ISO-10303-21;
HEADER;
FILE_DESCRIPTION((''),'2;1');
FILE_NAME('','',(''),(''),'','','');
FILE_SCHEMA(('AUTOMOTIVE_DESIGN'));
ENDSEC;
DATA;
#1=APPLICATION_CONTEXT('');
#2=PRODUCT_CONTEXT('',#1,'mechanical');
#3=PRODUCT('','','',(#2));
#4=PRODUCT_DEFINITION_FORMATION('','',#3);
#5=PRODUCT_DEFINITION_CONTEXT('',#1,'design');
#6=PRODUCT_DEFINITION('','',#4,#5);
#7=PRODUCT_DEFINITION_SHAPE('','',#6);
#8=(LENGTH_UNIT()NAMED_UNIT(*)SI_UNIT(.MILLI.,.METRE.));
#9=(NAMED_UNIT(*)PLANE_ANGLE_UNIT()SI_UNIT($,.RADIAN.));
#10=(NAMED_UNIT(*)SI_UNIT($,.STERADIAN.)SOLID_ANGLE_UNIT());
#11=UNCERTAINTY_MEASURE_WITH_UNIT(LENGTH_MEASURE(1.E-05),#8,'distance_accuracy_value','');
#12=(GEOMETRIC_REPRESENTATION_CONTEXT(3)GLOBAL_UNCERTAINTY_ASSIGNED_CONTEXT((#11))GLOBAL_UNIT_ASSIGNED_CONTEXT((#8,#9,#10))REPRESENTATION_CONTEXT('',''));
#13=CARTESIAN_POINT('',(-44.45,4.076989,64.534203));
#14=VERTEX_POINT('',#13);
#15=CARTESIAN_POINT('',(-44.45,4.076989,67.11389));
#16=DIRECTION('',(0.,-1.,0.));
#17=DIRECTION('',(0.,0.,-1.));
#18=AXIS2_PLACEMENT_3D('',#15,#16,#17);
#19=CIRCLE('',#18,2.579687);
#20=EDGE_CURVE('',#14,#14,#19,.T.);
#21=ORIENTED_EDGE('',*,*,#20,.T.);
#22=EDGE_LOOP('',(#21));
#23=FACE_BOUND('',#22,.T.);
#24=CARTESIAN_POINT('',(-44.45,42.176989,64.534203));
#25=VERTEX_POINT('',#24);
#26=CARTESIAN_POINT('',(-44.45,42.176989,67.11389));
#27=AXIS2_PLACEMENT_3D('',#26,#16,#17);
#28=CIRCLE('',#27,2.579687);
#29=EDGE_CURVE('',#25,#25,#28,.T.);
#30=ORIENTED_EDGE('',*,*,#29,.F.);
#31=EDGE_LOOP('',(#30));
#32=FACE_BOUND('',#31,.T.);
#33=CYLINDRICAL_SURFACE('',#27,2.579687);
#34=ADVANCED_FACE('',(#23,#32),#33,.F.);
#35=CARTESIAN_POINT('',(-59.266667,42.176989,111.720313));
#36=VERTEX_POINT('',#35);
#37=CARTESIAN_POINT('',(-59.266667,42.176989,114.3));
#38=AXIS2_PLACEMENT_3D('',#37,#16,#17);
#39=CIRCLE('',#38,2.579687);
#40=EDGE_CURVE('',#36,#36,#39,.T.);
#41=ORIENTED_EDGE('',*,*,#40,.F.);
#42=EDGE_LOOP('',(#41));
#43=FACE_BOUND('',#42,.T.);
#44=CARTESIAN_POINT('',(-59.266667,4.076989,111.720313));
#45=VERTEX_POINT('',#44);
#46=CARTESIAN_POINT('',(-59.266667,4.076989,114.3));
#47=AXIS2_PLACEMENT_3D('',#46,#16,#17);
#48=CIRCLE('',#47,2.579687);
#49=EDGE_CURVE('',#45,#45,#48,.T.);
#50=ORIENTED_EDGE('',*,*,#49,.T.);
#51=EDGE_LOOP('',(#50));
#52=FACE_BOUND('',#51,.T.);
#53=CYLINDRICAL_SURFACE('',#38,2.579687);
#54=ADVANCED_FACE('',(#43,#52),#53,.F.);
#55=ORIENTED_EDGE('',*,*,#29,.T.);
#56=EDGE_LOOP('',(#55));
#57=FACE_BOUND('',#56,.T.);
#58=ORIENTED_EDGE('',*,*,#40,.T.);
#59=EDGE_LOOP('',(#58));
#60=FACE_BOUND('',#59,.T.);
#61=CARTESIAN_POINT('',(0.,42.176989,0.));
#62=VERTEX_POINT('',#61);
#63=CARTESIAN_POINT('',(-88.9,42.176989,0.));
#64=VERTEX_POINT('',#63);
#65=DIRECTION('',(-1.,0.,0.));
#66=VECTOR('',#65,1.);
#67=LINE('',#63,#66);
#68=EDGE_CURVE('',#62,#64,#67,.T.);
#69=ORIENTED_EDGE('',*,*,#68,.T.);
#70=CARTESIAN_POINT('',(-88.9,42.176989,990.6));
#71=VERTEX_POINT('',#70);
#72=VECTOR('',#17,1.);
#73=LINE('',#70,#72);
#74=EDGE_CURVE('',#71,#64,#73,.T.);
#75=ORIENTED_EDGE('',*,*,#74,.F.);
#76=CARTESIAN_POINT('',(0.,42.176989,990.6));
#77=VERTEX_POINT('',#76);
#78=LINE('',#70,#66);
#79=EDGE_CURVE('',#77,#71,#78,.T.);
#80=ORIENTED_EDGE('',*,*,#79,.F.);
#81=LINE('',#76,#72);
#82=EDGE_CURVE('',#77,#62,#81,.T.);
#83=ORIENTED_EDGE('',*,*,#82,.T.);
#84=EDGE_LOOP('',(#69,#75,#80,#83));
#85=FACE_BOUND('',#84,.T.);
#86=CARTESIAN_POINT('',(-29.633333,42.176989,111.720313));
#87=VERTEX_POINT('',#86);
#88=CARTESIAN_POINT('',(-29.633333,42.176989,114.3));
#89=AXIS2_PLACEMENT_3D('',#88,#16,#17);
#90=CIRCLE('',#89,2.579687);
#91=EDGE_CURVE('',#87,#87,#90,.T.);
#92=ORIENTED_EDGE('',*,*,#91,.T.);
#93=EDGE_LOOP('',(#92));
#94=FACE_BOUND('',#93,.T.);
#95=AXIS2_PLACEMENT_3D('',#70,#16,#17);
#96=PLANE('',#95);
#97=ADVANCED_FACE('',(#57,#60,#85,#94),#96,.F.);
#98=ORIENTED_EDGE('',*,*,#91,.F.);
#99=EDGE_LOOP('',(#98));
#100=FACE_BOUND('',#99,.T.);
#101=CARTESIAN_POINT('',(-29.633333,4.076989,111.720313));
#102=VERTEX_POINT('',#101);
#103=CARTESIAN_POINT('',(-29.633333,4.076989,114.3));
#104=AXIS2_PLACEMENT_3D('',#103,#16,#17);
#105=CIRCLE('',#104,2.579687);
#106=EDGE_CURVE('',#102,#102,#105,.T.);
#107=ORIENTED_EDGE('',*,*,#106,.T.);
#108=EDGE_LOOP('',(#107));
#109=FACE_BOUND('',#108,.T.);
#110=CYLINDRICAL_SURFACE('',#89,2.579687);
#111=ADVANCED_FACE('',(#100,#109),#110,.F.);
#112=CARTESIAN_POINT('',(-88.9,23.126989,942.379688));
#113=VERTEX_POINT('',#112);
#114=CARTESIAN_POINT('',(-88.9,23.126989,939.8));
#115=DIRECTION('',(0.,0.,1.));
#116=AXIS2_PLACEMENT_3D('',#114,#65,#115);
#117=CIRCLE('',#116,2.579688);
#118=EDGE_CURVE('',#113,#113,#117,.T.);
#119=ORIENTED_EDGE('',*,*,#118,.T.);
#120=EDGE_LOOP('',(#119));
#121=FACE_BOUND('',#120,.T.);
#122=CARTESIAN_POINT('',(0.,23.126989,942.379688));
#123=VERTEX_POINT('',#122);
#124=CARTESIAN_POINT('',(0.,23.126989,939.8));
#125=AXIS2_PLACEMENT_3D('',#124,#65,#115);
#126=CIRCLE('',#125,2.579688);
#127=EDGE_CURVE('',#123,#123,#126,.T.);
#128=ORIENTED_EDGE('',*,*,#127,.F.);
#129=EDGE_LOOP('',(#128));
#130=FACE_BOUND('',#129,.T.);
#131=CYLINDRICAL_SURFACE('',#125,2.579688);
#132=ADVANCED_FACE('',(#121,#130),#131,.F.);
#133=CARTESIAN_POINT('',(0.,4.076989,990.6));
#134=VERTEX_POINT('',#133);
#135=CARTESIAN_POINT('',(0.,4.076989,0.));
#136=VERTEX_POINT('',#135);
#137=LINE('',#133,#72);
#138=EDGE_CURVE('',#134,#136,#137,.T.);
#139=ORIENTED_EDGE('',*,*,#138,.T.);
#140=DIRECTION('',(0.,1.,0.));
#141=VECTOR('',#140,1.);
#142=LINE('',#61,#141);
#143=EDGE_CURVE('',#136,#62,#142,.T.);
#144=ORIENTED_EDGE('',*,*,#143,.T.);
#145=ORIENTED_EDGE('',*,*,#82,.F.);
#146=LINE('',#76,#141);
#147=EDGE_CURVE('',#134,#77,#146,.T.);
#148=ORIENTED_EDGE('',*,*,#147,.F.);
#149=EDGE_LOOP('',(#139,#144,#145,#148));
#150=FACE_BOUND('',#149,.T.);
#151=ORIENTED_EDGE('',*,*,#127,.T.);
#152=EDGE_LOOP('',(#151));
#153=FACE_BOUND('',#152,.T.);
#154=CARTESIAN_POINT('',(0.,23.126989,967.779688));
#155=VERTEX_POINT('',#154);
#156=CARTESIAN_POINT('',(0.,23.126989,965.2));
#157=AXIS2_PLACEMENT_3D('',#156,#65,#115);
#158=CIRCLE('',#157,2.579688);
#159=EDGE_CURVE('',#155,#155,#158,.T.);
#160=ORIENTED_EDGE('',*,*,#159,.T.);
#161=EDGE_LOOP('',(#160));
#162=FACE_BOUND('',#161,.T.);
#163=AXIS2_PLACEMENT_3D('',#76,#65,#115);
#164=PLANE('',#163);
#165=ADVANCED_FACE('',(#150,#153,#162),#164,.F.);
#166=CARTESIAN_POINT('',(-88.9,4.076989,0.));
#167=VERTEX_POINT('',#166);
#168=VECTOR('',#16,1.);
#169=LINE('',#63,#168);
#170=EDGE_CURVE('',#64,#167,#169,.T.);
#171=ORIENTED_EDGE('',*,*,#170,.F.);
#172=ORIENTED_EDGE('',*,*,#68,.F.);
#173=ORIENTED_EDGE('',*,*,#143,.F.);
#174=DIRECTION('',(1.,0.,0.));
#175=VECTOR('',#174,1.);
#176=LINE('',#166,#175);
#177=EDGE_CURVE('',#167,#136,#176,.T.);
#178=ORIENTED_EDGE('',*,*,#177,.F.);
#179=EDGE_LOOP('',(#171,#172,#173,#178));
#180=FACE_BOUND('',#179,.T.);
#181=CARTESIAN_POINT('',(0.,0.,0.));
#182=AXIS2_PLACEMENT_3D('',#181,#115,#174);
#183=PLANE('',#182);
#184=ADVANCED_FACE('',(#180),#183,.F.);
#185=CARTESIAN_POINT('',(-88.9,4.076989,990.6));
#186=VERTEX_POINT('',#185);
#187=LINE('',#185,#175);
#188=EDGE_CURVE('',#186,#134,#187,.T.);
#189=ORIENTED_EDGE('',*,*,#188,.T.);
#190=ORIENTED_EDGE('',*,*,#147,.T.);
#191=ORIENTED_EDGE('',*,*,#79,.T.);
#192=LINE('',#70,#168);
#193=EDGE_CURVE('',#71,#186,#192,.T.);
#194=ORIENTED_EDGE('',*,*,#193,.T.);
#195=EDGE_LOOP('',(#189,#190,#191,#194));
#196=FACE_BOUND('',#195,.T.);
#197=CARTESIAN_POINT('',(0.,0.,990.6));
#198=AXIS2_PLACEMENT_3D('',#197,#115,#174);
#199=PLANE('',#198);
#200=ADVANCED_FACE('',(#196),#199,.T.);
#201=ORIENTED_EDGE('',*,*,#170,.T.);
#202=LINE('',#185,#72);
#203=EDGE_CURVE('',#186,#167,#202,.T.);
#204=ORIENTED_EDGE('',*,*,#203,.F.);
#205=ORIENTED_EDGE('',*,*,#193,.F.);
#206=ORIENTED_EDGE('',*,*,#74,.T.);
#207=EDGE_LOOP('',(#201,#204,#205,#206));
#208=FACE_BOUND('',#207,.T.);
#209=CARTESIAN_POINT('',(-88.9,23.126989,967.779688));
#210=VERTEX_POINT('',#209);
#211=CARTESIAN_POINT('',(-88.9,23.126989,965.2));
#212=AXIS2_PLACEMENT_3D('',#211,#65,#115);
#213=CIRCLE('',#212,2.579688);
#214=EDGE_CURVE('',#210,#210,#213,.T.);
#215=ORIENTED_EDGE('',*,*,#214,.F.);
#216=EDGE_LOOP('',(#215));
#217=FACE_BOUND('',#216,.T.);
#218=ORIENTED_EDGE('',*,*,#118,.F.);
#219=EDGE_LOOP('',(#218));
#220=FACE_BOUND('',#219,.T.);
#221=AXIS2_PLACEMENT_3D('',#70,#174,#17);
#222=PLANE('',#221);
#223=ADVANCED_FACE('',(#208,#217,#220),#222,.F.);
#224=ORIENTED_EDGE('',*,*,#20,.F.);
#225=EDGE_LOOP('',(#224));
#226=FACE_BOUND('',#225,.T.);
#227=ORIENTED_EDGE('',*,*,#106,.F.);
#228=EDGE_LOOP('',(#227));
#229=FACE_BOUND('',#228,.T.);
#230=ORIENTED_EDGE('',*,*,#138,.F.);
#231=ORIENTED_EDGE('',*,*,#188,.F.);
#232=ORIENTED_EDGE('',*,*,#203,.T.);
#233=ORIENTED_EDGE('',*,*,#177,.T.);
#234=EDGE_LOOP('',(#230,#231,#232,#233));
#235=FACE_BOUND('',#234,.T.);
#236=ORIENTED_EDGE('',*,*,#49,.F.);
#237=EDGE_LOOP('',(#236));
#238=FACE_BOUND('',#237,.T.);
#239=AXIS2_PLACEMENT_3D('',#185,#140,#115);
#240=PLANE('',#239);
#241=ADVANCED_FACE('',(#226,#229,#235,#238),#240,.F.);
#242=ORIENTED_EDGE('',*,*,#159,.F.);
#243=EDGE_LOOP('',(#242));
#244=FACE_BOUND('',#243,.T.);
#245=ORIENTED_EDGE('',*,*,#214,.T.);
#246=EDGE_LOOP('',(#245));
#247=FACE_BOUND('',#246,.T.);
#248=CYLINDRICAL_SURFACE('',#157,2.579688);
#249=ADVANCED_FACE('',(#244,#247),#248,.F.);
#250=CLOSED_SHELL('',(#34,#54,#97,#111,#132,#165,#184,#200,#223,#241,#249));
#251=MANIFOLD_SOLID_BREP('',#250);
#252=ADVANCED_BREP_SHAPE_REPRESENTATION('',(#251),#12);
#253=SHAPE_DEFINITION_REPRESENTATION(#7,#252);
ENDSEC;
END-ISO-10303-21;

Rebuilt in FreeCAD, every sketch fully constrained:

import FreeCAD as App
import Part
import Sketcher
Q = App.Units.Quantity

doc = App.newDocument("Part")
body = doc.addObject("PartDesign::Body", "Body")

# Sketch on XY plane
sketch1 = body.newObject("Sketcher::SketchObject", "Sketch")
sketch1.AttachmentSupport = (doc.getObject("XY_Plane"), [""])
sketch1.MapMode = "FlatFace"
sketch1.addGeometry([
    Part.LineSegment(App.Vector(-88.9, 42.176989, 0), App.Vector(-88.9, 4.076989, 0)),
    Part.LineSegment(App.Vector(-88.9, 4.076989, 0), App.Vector(0, 4.076989, 0)),
    Part.LineSegment(App.Vector(0, 4.076989, 0), App.Vector(0, 42.176989, 0)),
    Part.LineSegment(App.Vector(0, 42.176989, 0), App.Vector(-88.9, 42.176989, 0)),
], False)
sketch1.addConstraint([
    Sketcher.Constraint("Coincident", 0, 2, 1, 1),
    Sketcher.Constraint("Coincident", 1, 2, 2, 1),
    Sketcher.Constraint("Coincident", 2, 2, 3, 1),
    Sketcher.Constraint("Coincident", 3, 2, 0, 1),
    Sketcher.Constraint("Vertical", 0),
    Sketcher.Constraint("Horizontal", 1),
    Sketcher.Constraint("Vertical", 2),
    Sketcher.Constraint("Horizontal", 3),
    Sketcher.Constraint("PointOnObject", 1, 2, -2),
    Sketcher.Constraint("DistanceX", 1, 1, 1, 2, Q("3.5 in")),
    Sketcher.Constraint("DistanceY", 0, 2, 0, 1, Q("1.5 in")),
    Sketcher.Constraint("DistanceY", -1, 1, 0, 2, Q("4.076989 mm")),
])
pad1 = body.newObject("PartDesign::Pad", "Pad")
pad1.Profile = sketch1
pad1.Length = Q("39 in")

# Sketch on YZ plane
sketch2 = body.newObject("Sketcher::SketchObject", "Sketch001")
sketch2.AttachmentSupport = (doc.getObject("YZ_Plane"), [""])
sketch2.MapMode = "FlatFace"
sketch2.AttachmentOffset = App.Placement(App.Vector(0, 0, -3.5 * 25.4), App.Rotation())
sketch2.addGeometry([
    Part.Circle(App.Vector(23.126989, 939.8, 0), App.Vector(0, 0, 1), 2.579687),
    Part.Circle(App.Vector(23.126989, 965.2, 0), App.Vector(0, 0, 1), 2.579687),
], False)
sketch2.addConstraint([
    Sketcher.Constraint("Equal", 0, 1),
    Sketcher.Constraint("Vertical", 0, 3, 1, 3),
    Sketcher.Constraint("Diameter", 0, Q("0.203125 in")),
    Sketcher.Constraint("DistanceY", -1, 1, 0, 3, Q("37 in")),
    Sketcher.Constraint("DistanceY", -1, 1, 1, 3, Q("38 in")),
    Sketcher.Constraint("DistanceX", -1, 1, 0, 3, Q("23.126989 mm")),
])
pocket1 = body.newObject("PartDesign::Pocket", "Pocket")
pocket1.Profile = sketch2
pocket1.Type = "ThroughAll"
pocket1.Reversed = True

# Sketch on XZ plane
sketch3 = body.newObject("Sketcher::SketchObject", "Sketch002")
sketch3.AttachmentSupport = (doc.getObject("XZ_Plane"), [""])
sketch3.MapMode = "FlatFace"
sketch3.AttachmentOffset = App.Placement(App.Vector(0, 0, -4.076989), App.Rotation())
sketch3.addGeometry([
    Part.Circle(App.Vector(-44.45, 67.11389, 0), App.Vector(0, 0, 1), 2.579687),
    Part.Circle(App.Vector(-29.633333, 114.3, 0), App.Vector(0, 0, 1), 2.579687),
    Part.Circle(App.Vector(-59.266667, 114.3, 0), App.Vector(0, 0, 1), 2.579687),
], False)
sketch3.addConstraint([
    Sketcher.Constraint("Equal", 0, 1),
    Sketcher.Constraint("Equal", 1, 2),
    Sketcher.Constraint("Horizontal", 1, 3, 2, 3),
    Sketcher.Constraint("Diameter", 0, Q("0.203125 in")),
    Sketcher.Constraint("DistanceY", -1, 1, 1, 3, Q("4.5 in")),
    Sketcher.Constraint("DistanceX", 0, 3, -1, 1, Q("1.75 in")),
    Sketcher.Constraint("DistanceY", -1, 1, 0, 3, Q("67.11389 mm")),
    Sketcher.Constraint("DistanceX", 1, 3, -1, 1, Q("29.633333 mm")),
    Sketcher.Constraint("DistanceX", 2, 3, -1, 1, Q("59.266667 mm")),
])
pocket2 = body.newObject("PartDesign::Pocket", "Pocket001")
pocket2.Profile = sketch3
pocket2.Type = "ThroughAll"

doc.recompute()
